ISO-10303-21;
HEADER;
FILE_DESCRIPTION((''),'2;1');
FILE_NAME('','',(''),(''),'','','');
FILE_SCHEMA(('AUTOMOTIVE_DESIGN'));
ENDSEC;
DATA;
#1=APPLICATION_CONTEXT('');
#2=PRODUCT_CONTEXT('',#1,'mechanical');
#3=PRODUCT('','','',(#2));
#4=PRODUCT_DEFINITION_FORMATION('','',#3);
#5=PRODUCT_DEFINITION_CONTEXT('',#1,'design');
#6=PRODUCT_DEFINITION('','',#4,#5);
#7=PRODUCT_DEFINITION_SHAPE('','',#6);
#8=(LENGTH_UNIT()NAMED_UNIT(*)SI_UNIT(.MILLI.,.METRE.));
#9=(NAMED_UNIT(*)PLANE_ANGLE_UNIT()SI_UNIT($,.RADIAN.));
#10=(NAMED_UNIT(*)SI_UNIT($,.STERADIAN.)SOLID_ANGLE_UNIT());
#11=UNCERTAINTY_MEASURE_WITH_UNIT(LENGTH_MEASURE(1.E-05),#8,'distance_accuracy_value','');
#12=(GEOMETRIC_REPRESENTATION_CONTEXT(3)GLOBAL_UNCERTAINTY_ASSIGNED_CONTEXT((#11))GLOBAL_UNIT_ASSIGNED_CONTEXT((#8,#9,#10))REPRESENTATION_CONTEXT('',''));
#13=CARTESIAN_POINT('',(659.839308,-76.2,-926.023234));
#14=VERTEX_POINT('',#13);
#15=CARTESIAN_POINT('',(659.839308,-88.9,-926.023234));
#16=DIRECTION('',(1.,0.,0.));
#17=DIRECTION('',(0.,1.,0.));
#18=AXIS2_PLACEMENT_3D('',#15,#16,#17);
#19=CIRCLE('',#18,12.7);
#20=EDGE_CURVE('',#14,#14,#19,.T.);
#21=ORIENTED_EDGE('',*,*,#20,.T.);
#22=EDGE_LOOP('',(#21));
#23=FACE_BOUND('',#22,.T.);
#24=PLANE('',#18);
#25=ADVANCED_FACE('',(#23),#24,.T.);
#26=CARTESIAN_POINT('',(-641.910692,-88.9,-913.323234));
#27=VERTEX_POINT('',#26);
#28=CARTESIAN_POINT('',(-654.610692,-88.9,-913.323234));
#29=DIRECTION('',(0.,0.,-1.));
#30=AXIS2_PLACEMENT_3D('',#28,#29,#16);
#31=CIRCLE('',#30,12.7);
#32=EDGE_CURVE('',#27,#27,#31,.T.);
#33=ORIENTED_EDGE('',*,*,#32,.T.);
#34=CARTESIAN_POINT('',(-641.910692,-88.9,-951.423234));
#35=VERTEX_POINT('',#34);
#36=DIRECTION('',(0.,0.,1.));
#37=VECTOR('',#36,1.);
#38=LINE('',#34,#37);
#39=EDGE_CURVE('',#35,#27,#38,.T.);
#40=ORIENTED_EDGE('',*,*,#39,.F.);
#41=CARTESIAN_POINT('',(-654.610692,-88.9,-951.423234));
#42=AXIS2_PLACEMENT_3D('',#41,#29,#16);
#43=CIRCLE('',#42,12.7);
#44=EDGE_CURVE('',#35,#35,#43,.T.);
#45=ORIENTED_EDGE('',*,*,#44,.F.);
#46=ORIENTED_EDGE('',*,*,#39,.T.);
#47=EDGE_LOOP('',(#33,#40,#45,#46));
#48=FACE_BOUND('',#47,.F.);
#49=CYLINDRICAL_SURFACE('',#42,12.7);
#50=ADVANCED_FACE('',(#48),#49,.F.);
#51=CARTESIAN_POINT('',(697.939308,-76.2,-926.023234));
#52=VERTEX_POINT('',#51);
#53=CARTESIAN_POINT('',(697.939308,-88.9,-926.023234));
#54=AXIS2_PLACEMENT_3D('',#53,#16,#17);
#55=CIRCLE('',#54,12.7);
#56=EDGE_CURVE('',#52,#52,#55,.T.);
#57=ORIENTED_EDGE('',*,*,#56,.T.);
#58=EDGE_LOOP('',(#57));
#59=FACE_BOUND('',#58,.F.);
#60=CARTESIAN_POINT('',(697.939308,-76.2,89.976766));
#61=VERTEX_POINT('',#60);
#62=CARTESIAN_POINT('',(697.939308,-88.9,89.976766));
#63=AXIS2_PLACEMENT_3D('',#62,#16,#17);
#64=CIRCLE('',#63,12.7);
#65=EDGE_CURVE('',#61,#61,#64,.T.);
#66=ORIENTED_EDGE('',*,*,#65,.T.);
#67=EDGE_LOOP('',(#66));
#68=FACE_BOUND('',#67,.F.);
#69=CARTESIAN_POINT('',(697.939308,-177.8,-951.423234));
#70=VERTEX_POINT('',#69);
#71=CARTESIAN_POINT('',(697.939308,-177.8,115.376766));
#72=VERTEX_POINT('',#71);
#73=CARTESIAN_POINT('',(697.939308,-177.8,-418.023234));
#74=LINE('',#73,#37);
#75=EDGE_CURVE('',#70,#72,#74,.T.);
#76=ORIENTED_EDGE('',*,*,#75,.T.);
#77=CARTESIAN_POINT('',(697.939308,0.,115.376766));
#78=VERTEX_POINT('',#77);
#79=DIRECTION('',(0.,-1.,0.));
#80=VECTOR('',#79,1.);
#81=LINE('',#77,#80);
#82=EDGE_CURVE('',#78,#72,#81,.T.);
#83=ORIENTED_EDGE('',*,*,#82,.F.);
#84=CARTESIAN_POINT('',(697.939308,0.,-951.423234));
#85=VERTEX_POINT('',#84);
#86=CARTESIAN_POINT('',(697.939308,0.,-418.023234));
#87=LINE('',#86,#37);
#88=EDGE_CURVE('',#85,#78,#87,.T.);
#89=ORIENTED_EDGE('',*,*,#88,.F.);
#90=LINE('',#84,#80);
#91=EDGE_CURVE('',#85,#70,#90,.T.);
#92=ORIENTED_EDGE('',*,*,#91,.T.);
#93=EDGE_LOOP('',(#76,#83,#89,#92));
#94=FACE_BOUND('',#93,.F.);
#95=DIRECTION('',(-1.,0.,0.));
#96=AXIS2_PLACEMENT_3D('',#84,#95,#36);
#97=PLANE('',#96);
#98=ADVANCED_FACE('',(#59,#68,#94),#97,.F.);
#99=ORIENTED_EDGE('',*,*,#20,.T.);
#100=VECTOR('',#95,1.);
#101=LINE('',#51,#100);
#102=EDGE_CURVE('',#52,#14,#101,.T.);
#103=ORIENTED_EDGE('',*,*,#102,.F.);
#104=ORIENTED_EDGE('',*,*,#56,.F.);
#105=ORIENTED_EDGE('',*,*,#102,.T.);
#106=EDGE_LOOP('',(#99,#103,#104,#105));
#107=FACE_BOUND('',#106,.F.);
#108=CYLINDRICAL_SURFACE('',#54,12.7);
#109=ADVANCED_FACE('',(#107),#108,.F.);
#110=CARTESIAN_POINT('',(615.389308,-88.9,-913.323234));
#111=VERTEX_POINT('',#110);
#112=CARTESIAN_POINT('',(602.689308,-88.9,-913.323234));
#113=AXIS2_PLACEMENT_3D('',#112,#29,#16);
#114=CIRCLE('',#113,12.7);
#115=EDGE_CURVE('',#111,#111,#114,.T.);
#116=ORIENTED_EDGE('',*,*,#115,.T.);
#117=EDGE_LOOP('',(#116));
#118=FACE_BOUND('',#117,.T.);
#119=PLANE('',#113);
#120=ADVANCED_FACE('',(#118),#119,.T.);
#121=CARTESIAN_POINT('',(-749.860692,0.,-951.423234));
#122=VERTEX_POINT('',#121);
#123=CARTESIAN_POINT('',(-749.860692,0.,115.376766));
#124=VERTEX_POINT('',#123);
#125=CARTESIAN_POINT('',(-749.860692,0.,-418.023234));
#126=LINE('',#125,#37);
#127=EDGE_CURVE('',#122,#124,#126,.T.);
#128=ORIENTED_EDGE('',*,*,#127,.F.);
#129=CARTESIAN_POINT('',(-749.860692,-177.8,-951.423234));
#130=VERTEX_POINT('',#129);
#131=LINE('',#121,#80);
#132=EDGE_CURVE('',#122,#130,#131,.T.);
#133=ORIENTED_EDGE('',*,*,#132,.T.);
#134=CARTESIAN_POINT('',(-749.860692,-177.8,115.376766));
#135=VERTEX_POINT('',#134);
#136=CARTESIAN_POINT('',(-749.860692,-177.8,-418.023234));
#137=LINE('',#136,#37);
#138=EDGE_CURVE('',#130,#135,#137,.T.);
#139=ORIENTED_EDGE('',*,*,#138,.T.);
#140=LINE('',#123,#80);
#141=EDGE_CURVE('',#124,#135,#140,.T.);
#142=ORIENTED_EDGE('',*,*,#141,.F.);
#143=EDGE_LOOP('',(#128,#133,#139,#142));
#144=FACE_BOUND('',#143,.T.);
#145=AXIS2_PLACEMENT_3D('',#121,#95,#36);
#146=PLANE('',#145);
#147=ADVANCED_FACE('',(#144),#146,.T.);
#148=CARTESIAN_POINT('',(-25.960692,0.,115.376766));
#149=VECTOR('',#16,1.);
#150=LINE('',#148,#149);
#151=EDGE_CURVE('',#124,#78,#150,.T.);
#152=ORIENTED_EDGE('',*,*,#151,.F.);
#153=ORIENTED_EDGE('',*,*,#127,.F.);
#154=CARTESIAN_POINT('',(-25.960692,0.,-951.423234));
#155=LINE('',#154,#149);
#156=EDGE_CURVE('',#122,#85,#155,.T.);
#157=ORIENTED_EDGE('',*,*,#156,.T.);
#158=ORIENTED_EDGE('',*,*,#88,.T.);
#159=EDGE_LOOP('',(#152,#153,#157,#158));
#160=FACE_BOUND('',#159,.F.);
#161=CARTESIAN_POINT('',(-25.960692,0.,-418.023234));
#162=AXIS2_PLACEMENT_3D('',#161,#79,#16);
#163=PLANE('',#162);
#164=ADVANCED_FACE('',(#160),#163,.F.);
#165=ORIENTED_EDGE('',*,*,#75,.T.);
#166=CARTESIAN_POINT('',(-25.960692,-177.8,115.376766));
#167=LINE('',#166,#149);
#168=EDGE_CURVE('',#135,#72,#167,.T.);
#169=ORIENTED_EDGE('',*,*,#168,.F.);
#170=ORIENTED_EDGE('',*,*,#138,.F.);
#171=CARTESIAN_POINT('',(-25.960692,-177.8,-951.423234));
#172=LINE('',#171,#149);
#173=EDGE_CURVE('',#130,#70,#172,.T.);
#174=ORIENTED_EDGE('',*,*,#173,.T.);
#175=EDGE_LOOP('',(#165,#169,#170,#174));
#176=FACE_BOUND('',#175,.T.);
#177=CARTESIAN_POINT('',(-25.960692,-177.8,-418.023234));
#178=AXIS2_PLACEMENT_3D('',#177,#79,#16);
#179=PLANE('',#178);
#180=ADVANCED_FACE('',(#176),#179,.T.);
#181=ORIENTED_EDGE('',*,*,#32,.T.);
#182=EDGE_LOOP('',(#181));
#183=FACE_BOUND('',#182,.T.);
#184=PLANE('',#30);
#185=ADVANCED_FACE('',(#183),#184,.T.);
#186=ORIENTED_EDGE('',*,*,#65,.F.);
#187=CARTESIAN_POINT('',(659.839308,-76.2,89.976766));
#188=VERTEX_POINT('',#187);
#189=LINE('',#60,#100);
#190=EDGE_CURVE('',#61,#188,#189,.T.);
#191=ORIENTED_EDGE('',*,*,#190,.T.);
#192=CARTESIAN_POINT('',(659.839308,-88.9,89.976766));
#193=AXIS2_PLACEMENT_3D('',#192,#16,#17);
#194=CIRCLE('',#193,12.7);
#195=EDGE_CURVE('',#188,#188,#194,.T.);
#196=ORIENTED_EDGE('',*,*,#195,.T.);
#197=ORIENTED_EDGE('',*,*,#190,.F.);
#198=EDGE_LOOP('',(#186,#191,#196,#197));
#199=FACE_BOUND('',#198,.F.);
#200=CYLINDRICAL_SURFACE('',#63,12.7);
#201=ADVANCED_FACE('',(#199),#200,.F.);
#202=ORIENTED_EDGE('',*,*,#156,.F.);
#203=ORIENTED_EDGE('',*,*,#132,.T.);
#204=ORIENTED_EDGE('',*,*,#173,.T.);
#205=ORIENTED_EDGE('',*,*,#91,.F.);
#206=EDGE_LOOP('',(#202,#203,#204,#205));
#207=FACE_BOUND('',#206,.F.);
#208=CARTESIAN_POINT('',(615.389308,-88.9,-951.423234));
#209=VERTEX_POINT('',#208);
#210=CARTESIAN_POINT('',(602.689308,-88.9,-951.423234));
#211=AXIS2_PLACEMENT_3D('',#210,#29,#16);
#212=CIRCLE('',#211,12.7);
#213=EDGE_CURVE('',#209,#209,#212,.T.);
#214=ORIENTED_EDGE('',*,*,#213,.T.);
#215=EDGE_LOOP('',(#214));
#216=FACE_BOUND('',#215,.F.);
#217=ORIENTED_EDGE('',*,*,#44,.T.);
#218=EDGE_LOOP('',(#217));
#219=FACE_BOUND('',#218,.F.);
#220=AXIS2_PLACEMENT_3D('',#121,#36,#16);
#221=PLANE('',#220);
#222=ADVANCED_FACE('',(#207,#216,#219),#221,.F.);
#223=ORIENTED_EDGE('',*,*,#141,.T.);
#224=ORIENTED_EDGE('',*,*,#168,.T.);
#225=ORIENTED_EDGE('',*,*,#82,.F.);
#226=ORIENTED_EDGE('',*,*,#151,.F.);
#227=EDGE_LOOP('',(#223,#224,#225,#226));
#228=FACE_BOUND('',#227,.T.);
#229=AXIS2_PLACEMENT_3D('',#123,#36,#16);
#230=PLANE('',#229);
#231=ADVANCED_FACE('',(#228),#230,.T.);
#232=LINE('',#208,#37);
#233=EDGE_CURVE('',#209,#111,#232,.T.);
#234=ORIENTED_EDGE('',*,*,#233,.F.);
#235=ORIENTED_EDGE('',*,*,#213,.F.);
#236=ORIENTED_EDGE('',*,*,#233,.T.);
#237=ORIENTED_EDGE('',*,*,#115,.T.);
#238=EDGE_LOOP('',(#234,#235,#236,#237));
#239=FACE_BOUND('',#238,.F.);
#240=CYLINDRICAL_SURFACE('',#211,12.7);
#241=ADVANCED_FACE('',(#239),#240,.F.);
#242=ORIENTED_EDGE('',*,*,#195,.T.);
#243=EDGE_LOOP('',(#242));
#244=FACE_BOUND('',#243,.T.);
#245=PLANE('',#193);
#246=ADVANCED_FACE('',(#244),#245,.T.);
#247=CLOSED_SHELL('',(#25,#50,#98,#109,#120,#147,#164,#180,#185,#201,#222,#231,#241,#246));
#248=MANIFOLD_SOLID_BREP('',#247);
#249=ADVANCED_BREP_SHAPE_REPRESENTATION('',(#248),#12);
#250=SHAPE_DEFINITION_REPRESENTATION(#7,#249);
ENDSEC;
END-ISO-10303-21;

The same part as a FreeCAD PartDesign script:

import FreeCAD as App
import Part
import Sketcher
from FreeCAD import Vector
Q = App.Units.Quantity

doc = App.newDocument("Part")
body = doc.addObject("PartDesign::Body", "Body")

# Sketch on XZ plane
sketch1 = body.newObject("Sketcher::SketchObject", "Sketch")
sketch1.AttachmentSupport = (doc.getObject("XZ_Plane"), [""])
sketch1.MapMode = "FlatFace"
sketch1.addGeometry(Part.LineSegment(Vector(-750, 115, 0), Vector(-750, -951, 0)), False)
sketch1.addGeometry(Part.LineSegment(Vector(-750, -951, 0), Vector(698, -951, 0)), False)
sketch1.addGeometry(Part.LineSegment(Vector(698, -951, 0), Vector(698, 115, 0)), False)
sketch1.addGeometry(Part.LineSegment(Vector(698, 115, 0), Vector(-750, 115, 0)), False)
sketch1.addConstraint(Sketcher.Constraint("Coincident", 0, 2, 1, 1))
sketch1.addConstraint(Sketcher.Constraint("Coincident", 1, 2, 2, 1))
sketch1.addConstraint(Sketcher.Constraint("Coincident", 2, 2, 3, 1))
sketch1.addConstraint(Sketcher.Constraint("Coincident", 3, 2, 0, 1))
sketch1.addConstraint(Sketcher.Constraint("Vertical", 0))
sketch1.addConstraint(Sketcher.Constraint("Horizontal", 1))
sketch1.addConstraint(Sketcher.Constraint("Vertical", 2))
sketch1.addConstraint(Sketcher.Constraint("Horizontal", 3))
sketch1.addConstraint(Sketcher.Constraint("DistanceX", 1, 1, 1, 2, Q("57 in")))
sketch1.addConstraint(Sketcher.Constraint("DistanceY", 0, 2, 0, 1, Q("42 in")))
sketch1.addConstraint(Sketcher.Constraint("DistanceX", 0, 2, -1, 1, Q("749.860692 mm")))
sketch1.addConstraint(Sketcher.Constraint("DistanceY", 0, 2, -1, 1, Q("951.423234 mm")))
pad1 = body.newObject("PartDesign::Pad", "Pad")
pad1.Profile = sketch1
pad1.Length = Q("7 in")

# Sketch on XY plane
sketch2 = body.newObject("Sketcher::SketchObject", "Sketch001")
sketch2.AttachmentSupport = (doc.getObject("XY_Plane"), [""])
sketch2.MapMode = "FlatFace"
sketch2.AttachmentOffset = App.Placement(Vector(0, 0, -951.423234), App.Rotation())
sketch2.addGeometry(Part.Circle(Vector(-655, -89, 0), Vector(0, 0, 1), 13), False)
sketch2.addGeometry(Part.Circle(Vector(603, -89, 0), Vector(0, 0, 1), 13), False)
sketch2.addConstraint(Sketcher.Constraint("Equal", 0, 1))
sketch2.addConstraint(Sketcher.Constraint("Horizontal", 0, 3, 1, 3))
sketch2.addConstraint(Sketcher.Constraint("Diameter", 0, Q("1 in")))
sketch2.addConstraint(Sketcher.Constraint("DistanceY", 0, 3, -1, 1, Q("3.5 in")))
sketch2.addConstraint(Sketcher.Constraint("DistanceX", 0, 3, 1, 3, Q("49.5 in")))
sketch2.addConstraint(Sketcher.Constraint("DistanceX", 0, 3, -1, 1, Q("654.610692 mm")))
pocket1 = body.newObject("PartDesign::Pocket", "Pocket")
pocket1.Profile = sketch2
pocket1.Length = Q("1.5 in")
pocket1.Reversed = True

# Sketch on YZ plane
sketch3 = body.newObject("Sketcher::SketchObject", "Sketch002")
sketch3.AttachmentSupport = (doc.getObject("YZ_Plane"), [""])
sketch3.MapMode = "FlatFace"
sketch3.AttachmentOffset = App.Placement(Vector(0, 0, 697.939308), App.Rotation())
sketch3.addGeometry(Part.Circle(Vector(-89, 90, 0), Vector(0, 0, 1), 13), False)
sketch3.addGeometry(Part.Circle(Vector(-89, -926, 0), Vector(0, 0, 1), 13), False)
sketch3.addConstraint(Sketcher.Constraint("Equal", 0, 1))
sketch3.addConstraint(Sketcher.Constraint("Vertical", 0, 3, 1, 3))
sketch3.addConstraint(Sketcher.Constraint("Diameter", 0, Q("1 in")))
sketch3.addConstraint(Sketcher.Constraint("DistanceY", 1, 3, 0, 3, Q("40 in")))
sketch3.addConstraint(Sketcher.Constraint("DistanceX", 0, 3, -1, 1, Q("3.5 in")))
sketch3.addConstraint(Sketcher.Constraint("DistanceY", -1, 1, 0, 3, Q("89.976766 mm")))
pocket2 = body.newObject("PartDesign::Pocket", "Pocket001")
pocket2.Profile = sketch3
pocket2.Length = Q("1.5 in")

doc.recompute()
